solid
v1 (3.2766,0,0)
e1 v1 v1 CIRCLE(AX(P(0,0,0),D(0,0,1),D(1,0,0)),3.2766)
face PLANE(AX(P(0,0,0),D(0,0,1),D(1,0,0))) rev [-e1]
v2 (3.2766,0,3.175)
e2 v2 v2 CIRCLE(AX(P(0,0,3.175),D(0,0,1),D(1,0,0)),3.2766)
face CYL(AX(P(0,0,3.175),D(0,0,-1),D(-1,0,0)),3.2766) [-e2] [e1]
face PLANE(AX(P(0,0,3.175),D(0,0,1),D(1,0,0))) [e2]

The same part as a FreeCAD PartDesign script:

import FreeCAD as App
import Part
import Sketcher
Q = App.Units.Quantity

doc = App.newDocument("Part")
body = doc.addObject("PartDesign::Body", "Body")

# Sketch on XY plane
sketch1 = doc.addObject("Sketcher::SketchObject", "Sketch")
body.addObject(sketch1)
sketch1.AttachmentSupport = (doc.XY_Plane, [""])
sketch1.MapMode = "FlatFace"
sketch1.addGeometry(Part.Circle(App.Vector(0, 0, 0), App.Vector(0, 0, 1), 3.2766), False)
sketch1.addConstraint(Sketcher.Constraint("Coincident", 0, 3, -1, 1))
sketch1.addConstraint(Sketcher.Constraint("Diameter", 0, Q("0.258 in")))
pad1 = doc.addObject("PartDesign::Pad", "Pad")
body.addObject(pad1)
pad1.Profile = sketch1
pad1.Length = Q("0.125 in")

doc.recompute()
